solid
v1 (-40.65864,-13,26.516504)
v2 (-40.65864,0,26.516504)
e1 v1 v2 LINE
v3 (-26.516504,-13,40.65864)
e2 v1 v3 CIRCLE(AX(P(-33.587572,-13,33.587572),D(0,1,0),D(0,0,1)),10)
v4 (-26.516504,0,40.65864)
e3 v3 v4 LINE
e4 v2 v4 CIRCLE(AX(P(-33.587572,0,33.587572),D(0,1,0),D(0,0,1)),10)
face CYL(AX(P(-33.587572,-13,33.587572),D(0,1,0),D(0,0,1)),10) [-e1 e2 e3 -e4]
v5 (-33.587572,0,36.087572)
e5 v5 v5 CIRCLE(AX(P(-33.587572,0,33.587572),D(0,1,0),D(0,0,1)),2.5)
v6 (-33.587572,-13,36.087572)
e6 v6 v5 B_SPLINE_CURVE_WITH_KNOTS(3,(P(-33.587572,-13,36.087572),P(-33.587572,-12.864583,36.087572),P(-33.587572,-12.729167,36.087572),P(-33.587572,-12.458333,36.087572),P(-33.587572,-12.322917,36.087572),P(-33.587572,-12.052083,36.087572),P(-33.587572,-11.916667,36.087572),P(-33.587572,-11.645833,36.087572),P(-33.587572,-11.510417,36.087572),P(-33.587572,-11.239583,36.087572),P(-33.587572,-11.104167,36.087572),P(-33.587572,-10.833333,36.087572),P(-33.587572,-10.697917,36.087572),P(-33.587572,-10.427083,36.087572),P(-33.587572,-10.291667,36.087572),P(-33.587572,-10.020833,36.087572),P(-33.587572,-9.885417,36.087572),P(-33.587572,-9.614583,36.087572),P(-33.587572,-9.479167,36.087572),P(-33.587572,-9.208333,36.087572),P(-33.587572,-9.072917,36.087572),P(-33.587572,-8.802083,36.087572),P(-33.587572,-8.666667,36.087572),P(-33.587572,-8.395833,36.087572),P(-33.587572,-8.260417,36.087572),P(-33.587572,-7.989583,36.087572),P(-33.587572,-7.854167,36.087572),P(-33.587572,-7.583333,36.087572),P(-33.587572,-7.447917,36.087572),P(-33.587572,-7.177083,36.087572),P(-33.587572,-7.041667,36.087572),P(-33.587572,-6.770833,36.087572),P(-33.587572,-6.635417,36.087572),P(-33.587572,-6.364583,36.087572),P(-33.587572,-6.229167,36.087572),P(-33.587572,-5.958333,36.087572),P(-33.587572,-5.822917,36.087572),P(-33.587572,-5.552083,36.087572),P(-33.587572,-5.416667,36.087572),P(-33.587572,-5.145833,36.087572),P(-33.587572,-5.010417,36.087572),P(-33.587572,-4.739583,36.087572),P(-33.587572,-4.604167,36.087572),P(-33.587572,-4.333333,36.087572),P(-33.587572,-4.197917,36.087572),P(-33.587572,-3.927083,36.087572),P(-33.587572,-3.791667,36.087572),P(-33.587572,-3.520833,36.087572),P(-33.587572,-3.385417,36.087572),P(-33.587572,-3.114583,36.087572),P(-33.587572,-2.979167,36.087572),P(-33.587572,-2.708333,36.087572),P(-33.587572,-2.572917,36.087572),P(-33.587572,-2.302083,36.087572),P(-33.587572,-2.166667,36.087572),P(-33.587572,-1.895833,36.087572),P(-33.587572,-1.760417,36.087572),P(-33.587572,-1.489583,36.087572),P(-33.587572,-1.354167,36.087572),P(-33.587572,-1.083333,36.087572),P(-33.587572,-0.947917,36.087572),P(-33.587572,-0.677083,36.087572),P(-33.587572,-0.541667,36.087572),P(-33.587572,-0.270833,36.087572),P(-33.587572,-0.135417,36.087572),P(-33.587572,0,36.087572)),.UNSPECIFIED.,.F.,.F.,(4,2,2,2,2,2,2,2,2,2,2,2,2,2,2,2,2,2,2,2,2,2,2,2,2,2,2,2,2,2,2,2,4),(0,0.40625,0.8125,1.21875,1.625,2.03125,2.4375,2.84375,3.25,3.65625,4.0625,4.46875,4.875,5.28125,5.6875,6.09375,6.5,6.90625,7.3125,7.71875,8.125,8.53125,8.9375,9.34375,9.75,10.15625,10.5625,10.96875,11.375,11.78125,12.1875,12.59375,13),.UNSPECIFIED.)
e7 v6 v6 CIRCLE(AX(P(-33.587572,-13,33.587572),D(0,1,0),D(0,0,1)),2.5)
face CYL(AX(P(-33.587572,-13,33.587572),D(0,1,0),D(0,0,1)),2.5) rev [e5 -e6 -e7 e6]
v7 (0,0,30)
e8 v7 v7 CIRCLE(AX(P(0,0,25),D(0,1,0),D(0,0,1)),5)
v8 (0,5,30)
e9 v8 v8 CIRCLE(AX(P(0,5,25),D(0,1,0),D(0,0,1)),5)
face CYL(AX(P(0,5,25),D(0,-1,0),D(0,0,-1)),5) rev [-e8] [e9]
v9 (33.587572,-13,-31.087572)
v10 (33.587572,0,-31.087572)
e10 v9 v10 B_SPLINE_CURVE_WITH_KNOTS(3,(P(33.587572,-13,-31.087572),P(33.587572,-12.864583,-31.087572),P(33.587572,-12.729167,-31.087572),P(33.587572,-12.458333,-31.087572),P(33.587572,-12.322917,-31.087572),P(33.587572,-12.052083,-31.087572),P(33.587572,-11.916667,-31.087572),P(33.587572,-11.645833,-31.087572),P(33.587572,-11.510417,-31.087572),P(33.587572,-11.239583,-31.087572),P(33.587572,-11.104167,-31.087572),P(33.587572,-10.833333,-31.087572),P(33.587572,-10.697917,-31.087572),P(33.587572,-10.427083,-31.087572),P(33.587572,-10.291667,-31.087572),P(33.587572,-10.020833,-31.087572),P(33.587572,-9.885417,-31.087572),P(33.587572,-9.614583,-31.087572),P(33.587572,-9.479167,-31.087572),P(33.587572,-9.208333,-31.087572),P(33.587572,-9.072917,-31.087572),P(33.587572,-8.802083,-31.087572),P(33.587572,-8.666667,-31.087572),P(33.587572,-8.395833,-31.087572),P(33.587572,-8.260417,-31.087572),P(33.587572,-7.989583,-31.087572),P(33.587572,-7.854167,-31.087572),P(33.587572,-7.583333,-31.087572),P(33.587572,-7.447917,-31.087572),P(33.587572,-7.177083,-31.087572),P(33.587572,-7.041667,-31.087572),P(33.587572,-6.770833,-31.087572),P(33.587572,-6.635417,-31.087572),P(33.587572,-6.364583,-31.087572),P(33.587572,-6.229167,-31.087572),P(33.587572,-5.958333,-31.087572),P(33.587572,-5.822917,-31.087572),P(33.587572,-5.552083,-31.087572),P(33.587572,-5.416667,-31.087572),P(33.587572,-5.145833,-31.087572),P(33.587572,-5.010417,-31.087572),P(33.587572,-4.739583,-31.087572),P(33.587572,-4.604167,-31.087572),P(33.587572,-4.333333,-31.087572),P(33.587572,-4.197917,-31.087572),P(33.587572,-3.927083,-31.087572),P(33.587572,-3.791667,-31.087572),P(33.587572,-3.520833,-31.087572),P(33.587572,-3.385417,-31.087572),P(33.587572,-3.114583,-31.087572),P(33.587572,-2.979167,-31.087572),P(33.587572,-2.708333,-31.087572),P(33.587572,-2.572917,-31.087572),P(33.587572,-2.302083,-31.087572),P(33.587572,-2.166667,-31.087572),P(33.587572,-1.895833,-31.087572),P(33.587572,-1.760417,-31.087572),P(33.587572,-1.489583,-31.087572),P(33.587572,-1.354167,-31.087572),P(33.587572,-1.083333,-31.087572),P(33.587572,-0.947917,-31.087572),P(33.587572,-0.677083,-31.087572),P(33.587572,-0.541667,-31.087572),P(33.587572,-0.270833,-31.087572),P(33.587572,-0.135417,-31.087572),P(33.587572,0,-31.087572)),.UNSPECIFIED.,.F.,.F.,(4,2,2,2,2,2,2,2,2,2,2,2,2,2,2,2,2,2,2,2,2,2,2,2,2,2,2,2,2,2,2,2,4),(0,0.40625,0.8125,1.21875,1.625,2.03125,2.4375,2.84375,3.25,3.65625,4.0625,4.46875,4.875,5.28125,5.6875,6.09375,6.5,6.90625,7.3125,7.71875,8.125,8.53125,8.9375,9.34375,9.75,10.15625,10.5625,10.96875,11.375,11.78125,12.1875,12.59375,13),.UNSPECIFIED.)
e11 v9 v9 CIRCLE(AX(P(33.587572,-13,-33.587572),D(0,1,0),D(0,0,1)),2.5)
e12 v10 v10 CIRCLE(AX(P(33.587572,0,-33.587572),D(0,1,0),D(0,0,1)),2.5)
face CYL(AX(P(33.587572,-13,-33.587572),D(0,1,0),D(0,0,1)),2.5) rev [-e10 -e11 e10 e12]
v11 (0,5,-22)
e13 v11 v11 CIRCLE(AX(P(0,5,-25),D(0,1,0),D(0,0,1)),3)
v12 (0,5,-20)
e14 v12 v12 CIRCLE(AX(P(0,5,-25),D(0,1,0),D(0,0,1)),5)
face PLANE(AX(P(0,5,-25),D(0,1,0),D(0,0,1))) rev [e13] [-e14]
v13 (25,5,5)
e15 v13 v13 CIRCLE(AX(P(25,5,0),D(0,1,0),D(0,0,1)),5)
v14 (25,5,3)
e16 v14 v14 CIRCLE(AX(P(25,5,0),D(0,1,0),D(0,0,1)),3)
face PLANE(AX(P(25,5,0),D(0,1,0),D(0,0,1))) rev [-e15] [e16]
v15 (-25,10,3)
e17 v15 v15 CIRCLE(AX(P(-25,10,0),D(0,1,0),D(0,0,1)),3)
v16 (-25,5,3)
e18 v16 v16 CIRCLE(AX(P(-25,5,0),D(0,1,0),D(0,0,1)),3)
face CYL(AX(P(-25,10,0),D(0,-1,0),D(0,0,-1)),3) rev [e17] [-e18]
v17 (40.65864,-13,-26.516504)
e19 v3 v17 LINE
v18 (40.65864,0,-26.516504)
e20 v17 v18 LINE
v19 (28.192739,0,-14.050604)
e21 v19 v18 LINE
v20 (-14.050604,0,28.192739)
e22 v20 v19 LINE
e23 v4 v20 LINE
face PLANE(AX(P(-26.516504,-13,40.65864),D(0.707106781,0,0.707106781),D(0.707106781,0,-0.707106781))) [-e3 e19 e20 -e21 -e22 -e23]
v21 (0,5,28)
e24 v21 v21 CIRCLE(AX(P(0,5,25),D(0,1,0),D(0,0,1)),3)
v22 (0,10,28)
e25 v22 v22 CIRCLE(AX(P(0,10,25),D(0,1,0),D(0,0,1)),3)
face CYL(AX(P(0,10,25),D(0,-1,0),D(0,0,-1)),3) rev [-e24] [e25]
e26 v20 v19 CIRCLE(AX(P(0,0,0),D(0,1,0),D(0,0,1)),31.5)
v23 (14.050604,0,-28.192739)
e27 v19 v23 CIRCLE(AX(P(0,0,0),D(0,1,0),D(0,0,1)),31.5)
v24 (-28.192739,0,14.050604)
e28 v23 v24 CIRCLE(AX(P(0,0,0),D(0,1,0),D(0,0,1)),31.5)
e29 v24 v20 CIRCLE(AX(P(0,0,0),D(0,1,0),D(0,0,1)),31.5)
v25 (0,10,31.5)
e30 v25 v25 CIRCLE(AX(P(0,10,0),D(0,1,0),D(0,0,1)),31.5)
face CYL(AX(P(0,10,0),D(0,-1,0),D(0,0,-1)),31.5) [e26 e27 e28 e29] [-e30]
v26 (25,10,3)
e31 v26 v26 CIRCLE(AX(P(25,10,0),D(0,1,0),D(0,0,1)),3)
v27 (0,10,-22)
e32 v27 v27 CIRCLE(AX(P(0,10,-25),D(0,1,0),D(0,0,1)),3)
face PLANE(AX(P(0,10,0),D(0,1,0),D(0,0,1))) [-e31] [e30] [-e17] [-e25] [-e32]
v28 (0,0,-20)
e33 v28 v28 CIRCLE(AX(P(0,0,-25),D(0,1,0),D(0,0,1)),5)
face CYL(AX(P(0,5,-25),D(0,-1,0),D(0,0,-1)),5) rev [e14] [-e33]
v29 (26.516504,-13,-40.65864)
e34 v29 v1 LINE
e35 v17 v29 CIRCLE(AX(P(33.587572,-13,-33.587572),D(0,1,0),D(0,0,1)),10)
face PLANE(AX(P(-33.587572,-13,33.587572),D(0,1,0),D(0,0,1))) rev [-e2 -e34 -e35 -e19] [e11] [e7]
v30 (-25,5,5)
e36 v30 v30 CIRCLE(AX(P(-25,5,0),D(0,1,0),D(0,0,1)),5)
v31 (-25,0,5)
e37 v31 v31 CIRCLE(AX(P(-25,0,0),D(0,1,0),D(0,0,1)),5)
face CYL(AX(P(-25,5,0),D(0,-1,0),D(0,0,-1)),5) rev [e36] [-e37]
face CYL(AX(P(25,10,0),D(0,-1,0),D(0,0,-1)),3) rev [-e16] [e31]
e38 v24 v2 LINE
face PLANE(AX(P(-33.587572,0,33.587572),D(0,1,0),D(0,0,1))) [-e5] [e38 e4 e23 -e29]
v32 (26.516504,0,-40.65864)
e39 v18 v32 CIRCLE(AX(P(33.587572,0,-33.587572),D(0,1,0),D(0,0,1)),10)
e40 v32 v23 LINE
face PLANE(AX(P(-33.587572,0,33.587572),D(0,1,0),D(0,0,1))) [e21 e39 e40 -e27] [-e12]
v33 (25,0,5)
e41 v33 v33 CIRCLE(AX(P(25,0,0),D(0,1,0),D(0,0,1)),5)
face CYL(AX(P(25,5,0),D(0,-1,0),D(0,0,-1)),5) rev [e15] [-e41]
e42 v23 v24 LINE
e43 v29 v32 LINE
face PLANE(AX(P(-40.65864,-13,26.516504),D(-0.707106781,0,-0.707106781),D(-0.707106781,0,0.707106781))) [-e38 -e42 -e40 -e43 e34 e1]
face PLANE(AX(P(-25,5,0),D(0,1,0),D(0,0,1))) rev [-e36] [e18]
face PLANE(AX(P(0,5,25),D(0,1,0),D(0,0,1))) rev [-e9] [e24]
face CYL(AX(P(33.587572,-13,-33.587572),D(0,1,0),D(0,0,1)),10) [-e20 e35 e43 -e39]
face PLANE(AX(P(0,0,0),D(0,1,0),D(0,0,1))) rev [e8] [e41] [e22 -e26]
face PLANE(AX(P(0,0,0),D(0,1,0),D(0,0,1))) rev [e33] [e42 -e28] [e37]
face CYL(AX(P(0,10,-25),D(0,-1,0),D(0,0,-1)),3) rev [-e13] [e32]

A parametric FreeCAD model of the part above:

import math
import FreeCAD as App
import Part
import Sketcher
Q = App.Units.Quantity

doc = App.newDocument("Part")
params = doc.addObject("Spreadsheet::Sheet", "Params")
for row, (alias, value) in enumerate([
    ("sketch1_diameter", "63 mm"),
    ("pad1_length", "10 mm"),
    ("sketch2_diameter", "6 mm"),
    ("pocket1_length", "10 mm"),
    ("sketch3_diameter", "10 mm"),
    ("pocket2_length", "5 mm"),
    ("sketch4_diameter", "5 mm"),
    ("sketch4_radius", "10 mm"),
    ("sketch4_length", "95 mm"),
    ("pad2_length", "13 mm"),
], start=1):
    params.set(f"A{row}", alias)
    params.set(f"B{row}", "=" + value)
    params.setAlias(f"B{row}", alias)

body = doc.addObject("PartDesign::Body", "Body")

# Sketch on XZ plane
sketch1 = body.newObject("Sketcher::SketchObject", "Sketch")
sketch1.AttachmentSupport = (doc.getObject("XZ_Plane"), [""])
sketch1.MapMode = "FlatFace"
sketch1.addGeometry(Part.Circle(App.Vector(0, 0, 0), App.Vector(0, 0, 1), 32), False)
sketch1.addConstraint([
    Sketcher.Constraint("Coincident", 0, 3, -1, 1),
    Sketcher.Constraint("Diameter", 0, Q("63 mm")),
])
sketch1.setExpression("Constraints[1]", "Params.sketch1_diameter")
pad1 = body.newObject("PartDesign::Pad", "Pad")
pad1.Profile = sketch1
pad1.setExpression("Length", "Params.pad1_length")
pad1.Reversed = True

# Sketch on XZ plane
sketch2 = body.newObject("Sketcher::SketchObject", "Sketch001")
sketch2.AttachmentSupport = (doc.getObject("XZ_Plane"), [""])
sketch2.MapMode = "FlatFace"
sketch2.addGeometry([
    Part.Circle(App.Vector(0, -25, 0), App.Vector(0, 0, 1), 3),
    Part.Circle(App.Vector(25, 0, 0), App.Vector(0, 0, 1), 3),
    Part.Circle(App.Vector(0, 25, 0), App.Vector(0, 0, 1), 3),
    Part.Circle(App.Vector(-25, 0, 0), App.Vector(0, 0, 1), 3),
], False)
sketch2.addConstraint([
    Sketcher.Constraint("Equal", 0, 1),
    Sketcher.Constraint("Equal", 1, 2),
    Sketcher.Constraint("Equal", 2, 3),
    Sketcher.Constraint("Symmetric", 0, 3, 2, 3, -1, 1),
    Sketcher.Constraint("Symmetric", 1, 3, 3, 3, -1, 1),
    Sketcher.Constraint("PointOnObject", 0, 3, -2),
    Sketcher.Constraint("PointOnObject", 1, 3, -1),
    Sketcher.Constraint("Diameter", 0, Q("6 mm")),
    Sketcher.Constraint("DistanceY", 0, 3, -1, 1, Q("25 mm")),
    Sketcher.Constraint("DistanceX", -1, 1, 1, 3, Q("25 mm")),
])
sketch2.setExpression("Constraints[7]", "Params.sketch2_diameter")
pocket1 = body.newObject("PartDesign::Pocket", "Pocket")
pocket1.Profile = sketch2
pocket1.setExpression("Length", "Params.pocket1_length")

# Sketch on XZ plane
sketch3 = body.newObject("Sketcher::SketchObject", "Sketch002")
sketch3.AttachmentSupport = (doc.getObject("XZ_Plane"), [""])
sketch3.MapMode = "FlatFace"
sketch3.addGeometry([
    Part.Circle(App.Vector(0, -25, 0), App.Vector(0, 0, 1), 5),
    Part.Circle(App.Vector(25, 0, 0), App.Vector(0, 0, 1), 5),
    Part.Circle(App.Vector(0, 25, 0), App.Vector(0, 0, 1), 5),
    Part.Circle(App.Vector(-25, 0, 0), App.Vector(0, 0, 1), 5),
], False)
sketch3.addConstraint([
    Sketcher.Constraint("Equal", 0, 1),
    Sketcher.Constraint("Equal", 1, 2),
    Sketcher.Constraint("Equal", 2, 3),
    Sketcher.Constraint("Symmetric", 0, 3, 2, 3, -1, 1),
    Sketcher.Constraint("Symmetric", 1, 3, 3, 3, -1, 1),
    Sketcher.Constraint("PointOnObject", 0, 3, -2),
    Sketcher.Constraint("PointOnObject", 1, 3, -1),
    Sketcher.Constraint("Diameter", 0, Q("10 mm")),
    Sketcher.Constraint("DistanceY", 0, 3, -1, 1, Q("25 mm")),
    Sketcher.Constraint("DistanceX", -1, 1, 1, 3, Q("25 mm")),
])
sketch3.setExpression("Constraints[7]", "Params.sketch3_diameter")
pocket2 = body.newObject("PartDesign::Pocket", "Pocket001")
pocket2.Profile = sketch3
pocket2.setExpression("Length", "Params.pocket2_length")

# Sketch on XZ plane
sketch4 = body.newObject("Sketcher::SketchObject", "Sketch003")
sketch4.AttachmentSupport = (doc.getObject("XZ_Plane"), [""])
sketch4.MapMode = "FlatFace"
sketch4.addGeometry([
    Part.LineSegment(App.Vector(26.5, -40.7, 0), App.Vector(-40.7, 26.5, 0)),  # 0
    Part.ArcOfCircle(Part.Circle(App.Vector(-33.6, 33.6, 0), App.Vector(0, 0, 1), 10), math.radians(45), math.radians(225)),  # 1
    Part.LineSegment(App.Vector(-26.5, 40.7, 0), App.Vector(40.7, -26.5, 0)),  # 2
    Part.ArcOfCircle(Part.Circle(App.Vector(33.6, -33.6, 0), App.Vector(0, 0, 1), 10), math.radians(-135), math.radians(45)),  # 3
    Part.Circle(App.Vector(-33.6, 33.6, 0), App.Vector(0, 0, 1), 2.5),  # 4
    Part.Circle(App.Vector(33.6, -33.6, 0), App.Vector(0, 0, 1), 2.5),  # 5
], False)
sketch4.addConstraint([
    Sketcher.Constraint("Tangent", 0, 2, 1, 2),
    Sketcher.Constraint("Tangent", 1, 1, 2, 1),
    Sketcher.Constraint("Tangent", 2, 2, 3, 2),
    Sketcher.Constraint("Tangent", 3, 1, 0, 1),
    Sketcher.Constraint("Coincident", 4, 3, 1, 3),
    Sketcher.Constraint("Coincident", 5, 3, 3, 3),
    Sketcher.Constraint("Equal", 1, 3),
    Sketcher.Constraint("Equal", 4, 5),
    Sketcher.Constraint("Symmetric", 1, 3, 3, 3, -1, 1),
    Sketcher.Constraint("Diameter", 4, Q("5 mm")),
    Sketcher.Constraint("Radius", 1, Q("10 mm")),
    Sketcher.Constraint("Angle", 0, Q("135 deg")),
    Sketcher.Constraint("Distance", 0, Q("95 mm")),
])
sketch4.setExpression("Constraints[9]", "Params.sketch4_diameter")
sketch4.setExpression("Constraints[10]", "Params.sketch4_radius")
sketch4.setExpression("Constraints[12]", "Params.sketch4_length")
pad2 = body.newObject("PartDesign::Pad", "Pad001")
pad2.Profile = sketch4
pad2.setExpression("Length", "Params.pad2_length")

doc.recompute()
